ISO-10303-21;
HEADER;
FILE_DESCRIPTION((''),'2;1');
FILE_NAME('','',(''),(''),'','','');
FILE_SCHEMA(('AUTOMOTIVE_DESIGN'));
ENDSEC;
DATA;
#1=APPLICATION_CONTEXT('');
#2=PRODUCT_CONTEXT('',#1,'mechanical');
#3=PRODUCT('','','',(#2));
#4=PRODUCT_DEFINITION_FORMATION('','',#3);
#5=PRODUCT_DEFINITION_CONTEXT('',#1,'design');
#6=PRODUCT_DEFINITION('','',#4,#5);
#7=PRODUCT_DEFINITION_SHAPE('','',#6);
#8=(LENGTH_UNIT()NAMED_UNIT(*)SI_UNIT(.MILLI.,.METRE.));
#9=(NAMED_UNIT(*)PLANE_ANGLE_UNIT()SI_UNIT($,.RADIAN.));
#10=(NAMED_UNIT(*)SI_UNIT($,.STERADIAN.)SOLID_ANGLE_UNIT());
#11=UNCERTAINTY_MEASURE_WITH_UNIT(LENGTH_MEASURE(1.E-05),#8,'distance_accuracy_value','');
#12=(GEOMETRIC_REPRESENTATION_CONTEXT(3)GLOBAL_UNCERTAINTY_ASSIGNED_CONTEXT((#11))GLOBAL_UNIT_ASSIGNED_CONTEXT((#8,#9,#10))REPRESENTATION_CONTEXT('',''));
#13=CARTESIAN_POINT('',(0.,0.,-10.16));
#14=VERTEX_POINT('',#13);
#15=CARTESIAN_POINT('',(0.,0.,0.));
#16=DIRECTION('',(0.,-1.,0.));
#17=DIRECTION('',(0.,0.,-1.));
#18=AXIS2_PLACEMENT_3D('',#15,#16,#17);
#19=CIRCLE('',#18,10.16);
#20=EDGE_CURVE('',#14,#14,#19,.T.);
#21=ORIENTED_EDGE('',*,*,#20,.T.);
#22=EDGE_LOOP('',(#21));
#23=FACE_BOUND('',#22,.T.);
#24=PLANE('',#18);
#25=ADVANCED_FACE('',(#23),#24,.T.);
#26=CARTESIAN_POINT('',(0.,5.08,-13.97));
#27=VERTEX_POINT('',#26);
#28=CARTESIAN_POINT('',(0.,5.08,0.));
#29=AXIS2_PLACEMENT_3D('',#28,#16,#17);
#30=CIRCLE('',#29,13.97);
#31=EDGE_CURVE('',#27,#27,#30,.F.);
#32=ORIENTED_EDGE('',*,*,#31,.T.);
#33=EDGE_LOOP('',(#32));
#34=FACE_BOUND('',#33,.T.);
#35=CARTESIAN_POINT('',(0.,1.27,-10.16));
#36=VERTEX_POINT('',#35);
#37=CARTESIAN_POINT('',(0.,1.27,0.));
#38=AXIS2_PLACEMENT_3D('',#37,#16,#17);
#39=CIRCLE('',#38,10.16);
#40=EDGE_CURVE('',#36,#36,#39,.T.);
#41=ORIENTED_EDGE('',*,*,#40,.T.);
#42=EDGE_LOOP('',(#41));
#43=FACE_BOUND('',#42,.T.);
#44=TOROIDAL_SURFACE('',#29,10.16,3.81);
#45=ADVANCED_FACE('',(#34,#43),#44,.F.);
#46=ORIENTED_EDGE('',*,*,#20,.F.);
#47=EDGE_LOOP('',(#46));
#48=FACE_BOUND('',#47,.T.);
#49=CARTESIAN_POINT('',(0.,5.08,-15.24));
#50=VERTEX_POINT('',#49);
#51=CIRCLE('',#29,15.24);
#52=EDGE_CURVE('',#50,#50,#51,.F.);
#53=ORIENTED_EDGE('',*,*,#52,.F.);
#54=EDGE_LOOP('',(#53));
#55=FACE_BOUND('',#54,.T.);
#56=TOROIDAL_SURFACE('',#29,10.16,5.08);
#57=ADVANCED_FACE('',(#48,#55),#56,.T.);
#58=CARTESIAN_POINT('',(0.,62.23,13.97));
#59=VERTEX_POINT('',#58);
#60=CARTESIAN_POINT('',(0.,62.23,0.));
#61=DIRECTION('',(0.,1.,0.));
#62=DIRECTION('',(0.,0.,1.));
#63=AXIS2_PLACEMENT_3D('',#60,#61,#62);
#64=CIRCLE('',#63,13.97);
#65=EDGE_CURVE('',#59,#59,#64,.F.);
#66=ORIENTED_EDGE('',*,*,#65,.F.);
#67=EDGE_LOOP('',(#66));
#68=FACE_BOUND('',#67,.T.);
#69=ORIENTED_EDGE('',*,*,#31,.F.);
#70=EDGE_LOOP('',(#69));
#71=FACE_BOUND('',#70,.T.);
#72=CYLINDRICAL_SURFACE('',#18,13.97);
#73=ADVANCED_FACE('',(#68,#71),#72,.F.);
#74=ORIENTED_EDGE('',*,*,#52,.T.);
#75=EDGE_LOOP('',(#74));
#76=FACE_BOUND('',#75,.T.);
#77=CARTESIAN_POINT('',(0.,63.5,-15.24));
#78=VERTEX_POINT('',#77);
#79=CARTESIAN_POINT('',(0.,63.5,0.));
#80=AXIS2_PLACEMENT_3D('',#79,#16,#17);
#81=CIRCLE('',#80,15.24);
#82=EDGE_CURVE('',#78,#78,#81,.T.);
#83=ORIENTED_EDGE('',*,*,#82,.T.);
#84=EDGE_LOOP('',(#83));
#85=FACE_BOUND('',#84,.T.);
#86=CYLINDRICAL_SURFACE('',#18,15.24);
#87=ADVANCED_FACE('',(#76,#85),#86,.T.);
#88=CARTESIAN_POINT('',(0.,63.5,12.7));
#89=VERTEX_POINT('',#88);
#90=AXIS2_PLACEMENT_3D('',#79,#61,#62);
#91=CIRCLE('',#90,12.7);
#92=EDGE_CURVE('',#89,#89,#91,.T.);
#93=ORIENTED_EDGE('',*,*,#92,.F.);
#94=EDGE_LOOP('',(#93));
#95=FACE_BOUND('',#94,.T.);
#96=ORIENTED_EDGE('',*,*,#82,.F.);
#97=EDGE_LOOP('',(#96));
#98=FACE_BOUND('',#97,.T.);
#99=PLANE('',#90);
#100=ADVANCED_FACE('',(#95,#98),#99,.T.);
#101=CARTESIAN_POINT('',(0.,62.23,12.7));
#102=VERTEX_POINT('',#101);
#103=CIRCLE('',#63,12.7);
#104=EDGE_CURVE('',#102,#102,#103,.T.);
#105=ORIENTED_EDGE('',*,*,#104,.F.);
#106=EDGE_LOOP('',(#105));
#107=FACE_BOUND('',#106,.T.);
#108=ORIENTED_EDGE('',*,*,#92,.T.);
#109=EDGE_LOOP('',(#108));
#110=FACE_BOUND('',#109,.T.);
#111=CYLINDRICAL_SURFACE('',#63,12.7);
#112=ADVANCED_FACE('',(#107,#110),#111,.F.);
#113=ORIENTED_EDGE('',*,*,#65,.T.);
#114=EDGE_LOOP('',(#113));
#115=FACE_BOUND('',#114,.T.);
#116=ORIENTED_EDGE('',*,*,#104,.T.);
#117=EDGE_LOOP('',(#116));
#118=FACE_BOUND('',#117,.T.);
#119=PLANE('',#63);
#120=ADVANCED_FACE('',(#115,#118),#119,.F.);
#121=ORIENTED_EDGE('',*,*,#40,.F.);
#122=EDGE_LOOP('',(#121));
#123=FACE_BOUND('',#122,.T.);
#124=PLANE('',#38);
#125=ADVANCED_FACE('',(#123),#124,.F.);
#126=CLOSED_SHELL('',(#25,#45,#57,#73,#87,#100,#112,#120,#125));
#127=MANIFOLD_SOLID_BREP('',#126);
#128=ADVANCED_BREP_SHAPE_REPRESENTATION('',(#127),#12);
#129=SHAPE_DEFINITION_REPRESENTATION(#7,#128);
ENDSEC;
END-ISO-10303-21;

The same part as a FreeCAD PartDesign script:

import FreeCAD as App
import Part
import Sketcher
from FreeCAD import Vector
Q = App.Units.Quantity


def edges_at(feature, points):
    """Names of the edges that pass closest to the given points."""
    edges = feature.Shape.Edges
    near = lambda p: min(range(len(edges)), key=lambda i: edges[i].distToShape(Part.Vertex(*p))[0])
    return sorted({f"Edge{near(p) + 1}" for p in points})


def faces_at(feature, points):
    """Names of the faces that lie closest to the given points."""
    faces = feature.Shape.Faces
    near = lambda p: min(range(len(faces)), key=lambda i: faces[i].distToShape(Part.Vertex(*p))[0])
    return sorted({f"Face{near(p) + 1}" for p in points})


def add_polygon(sketch, points):
    """Adds a closed chain of lines whose ends are joined by coincident constraints."""
    first, n = sketch.GeometryCount, len(points)
    for a, b in zip(points, points[1:] + points[:1]):
        sketch.addGeometry(Part.LineSegment(App.Vector(*a, 0), App.Vector(*b, 0)), False)
    for i in range(n):
        sketch.addConstraint(Sketcher.Constraint("Coincident", first + i, 2, first + (i + 1) % n, 1))

doc = App.newDocument("Part")
params = doc.addObject("Spreadsheet::Sheet", "Params")
for row, (alias, value) in enumerate([
    ("sketch1_width", "2.5 in"),
    ("sketch1_height", "0.6 in"),
    ("revolution_angle", "360 deg"),
    ("fillet_radius", "0.2 in"),
    ("thickness_wall", "0.05 in"),
    ("sketch2_diameter", "1 in"),
    ("sketch2_diameter2", "1.1 in"),
    ("pad1_length", "0.05 in"),
], start=1):
    params.set(f"A{row}", alias)
    params.set(f"B{row}", "=" + value)
    params.setAlias(f"B{row}", alias)

body = doc.addObject("PartDesign::Body", "Body")

sketch1 = doc.addObject("Sketcher::SketchObject", "Sketch")
body.addObject(sketch1)
sketch1.AttachmentSupport = (doc.YZ_Plane, [""])
sketch1.MapMode = "FlatFace"
add_polygon(sketch1, [(64, 0), (0, 0), (0, -15), (64, -15)])
sketch1.addConstraint(Sketcher.Constraint("Horizontal", 0))
sketch1.addConstraint(Sketcher.Constraint("Vertical", 1))
sketch1.addConstraint(Sketcher.Constraint("Horizontal", 2))
sketch1.addConstraint(Sketcher.Constraint("Vertical", 3))
sketch1.addConstraint(Sketcher.Constraint("Coincident", 0, 2, -1, 1))
sketch1.addConstraint(Sketcher.Constraint("DistanceX", 0, 2, 0, 1, Q("2.5 in")))
sketch1.addConstraint(Sketcher.Constraint("DistanceY", 1, 2, 1, 1, Q("0.6 in")))
sketch1.setExpression("Constraints[9]", "Params.sketch1_width")
sketch1.setExpression("Constraints[10]", "Params.sketch1_height")
revolution = doc.addObject("PartDesign::Revolution", "Revolution")
body.addObject(revolution)
revolution.Profile = sketch1
revolution.ReferenceAxis = (sketch1, ["H_Axis"])
revolution.setExpression("Angle", "Params.revolution_angle")
doc.recompute()

fillet = doc.addObject("PartDesign::Fillet", "Fillet")
body.addObject(fillet)
fillet.Base = (revolution, edges_at(revolution, [(0, 0, 15.24)]))
fillet.setExpression("Radius", "Params.fillet_radius")
doc.recompute()

thickness = doc.addObject("PartDesign::Thickness", "Thickness")
body.addObject(thickness)
thickness.Base = (fillet, faces_at(fillet, [(0, 63.5, 0)]))
thickness.setExpression("Value", "Params.thickness_wall")
thickness.Reversed = True
thickness.Join = "Intersection"

sketch2 = doc.addObject("Sketcher::SketchObject", "Sketch001")
body.addObject(sketch2)
sketch2.AttachmentSupport = (doc.XZ_Plane, [""])
sketch2.MapMode = "FlatFace"
sketch2.AttachmentOffset = App.Placement(Vector(0, 0, -2.5 * 25.4), App.Rotation())
sketch2.addGeometry(Part.Circle(Vector(0, 0, 0), Vector(0, 0, 1), 14), False)
sketch2.addGeometry(Part.Circle(Vector(0, 0, 0), Vector(0, 0, 1), 13), False)
sketch2.addConstraint(Sketcher.Constraint("Coincident", 0, 3, -1, 1))
sketch2.addConstraint(Sketcher.Constraint("Coincident", 1, 3, -1, 1))
sketch2.addConstraint(Sketcher.Constraint("Diameter", 1, Q("1 in")))
sketch2.addConstraint(Sketcher.Constraint("Diameter", 0, Q("1.1 in")))
sketch2.setExpression("Constraints[2]", "Params.sketch2_diameter")
sketch2.setExpression("Constraints[3]", "Params.sketch2_diameter2")
pad1 = doc.addObject("PartDesign::Pad", "Pad")
body.addObject(pad1)
pad1.Profile = sketch2
pad1.setExpression("Length", "Params.pad1_length")

doc.recompute()
